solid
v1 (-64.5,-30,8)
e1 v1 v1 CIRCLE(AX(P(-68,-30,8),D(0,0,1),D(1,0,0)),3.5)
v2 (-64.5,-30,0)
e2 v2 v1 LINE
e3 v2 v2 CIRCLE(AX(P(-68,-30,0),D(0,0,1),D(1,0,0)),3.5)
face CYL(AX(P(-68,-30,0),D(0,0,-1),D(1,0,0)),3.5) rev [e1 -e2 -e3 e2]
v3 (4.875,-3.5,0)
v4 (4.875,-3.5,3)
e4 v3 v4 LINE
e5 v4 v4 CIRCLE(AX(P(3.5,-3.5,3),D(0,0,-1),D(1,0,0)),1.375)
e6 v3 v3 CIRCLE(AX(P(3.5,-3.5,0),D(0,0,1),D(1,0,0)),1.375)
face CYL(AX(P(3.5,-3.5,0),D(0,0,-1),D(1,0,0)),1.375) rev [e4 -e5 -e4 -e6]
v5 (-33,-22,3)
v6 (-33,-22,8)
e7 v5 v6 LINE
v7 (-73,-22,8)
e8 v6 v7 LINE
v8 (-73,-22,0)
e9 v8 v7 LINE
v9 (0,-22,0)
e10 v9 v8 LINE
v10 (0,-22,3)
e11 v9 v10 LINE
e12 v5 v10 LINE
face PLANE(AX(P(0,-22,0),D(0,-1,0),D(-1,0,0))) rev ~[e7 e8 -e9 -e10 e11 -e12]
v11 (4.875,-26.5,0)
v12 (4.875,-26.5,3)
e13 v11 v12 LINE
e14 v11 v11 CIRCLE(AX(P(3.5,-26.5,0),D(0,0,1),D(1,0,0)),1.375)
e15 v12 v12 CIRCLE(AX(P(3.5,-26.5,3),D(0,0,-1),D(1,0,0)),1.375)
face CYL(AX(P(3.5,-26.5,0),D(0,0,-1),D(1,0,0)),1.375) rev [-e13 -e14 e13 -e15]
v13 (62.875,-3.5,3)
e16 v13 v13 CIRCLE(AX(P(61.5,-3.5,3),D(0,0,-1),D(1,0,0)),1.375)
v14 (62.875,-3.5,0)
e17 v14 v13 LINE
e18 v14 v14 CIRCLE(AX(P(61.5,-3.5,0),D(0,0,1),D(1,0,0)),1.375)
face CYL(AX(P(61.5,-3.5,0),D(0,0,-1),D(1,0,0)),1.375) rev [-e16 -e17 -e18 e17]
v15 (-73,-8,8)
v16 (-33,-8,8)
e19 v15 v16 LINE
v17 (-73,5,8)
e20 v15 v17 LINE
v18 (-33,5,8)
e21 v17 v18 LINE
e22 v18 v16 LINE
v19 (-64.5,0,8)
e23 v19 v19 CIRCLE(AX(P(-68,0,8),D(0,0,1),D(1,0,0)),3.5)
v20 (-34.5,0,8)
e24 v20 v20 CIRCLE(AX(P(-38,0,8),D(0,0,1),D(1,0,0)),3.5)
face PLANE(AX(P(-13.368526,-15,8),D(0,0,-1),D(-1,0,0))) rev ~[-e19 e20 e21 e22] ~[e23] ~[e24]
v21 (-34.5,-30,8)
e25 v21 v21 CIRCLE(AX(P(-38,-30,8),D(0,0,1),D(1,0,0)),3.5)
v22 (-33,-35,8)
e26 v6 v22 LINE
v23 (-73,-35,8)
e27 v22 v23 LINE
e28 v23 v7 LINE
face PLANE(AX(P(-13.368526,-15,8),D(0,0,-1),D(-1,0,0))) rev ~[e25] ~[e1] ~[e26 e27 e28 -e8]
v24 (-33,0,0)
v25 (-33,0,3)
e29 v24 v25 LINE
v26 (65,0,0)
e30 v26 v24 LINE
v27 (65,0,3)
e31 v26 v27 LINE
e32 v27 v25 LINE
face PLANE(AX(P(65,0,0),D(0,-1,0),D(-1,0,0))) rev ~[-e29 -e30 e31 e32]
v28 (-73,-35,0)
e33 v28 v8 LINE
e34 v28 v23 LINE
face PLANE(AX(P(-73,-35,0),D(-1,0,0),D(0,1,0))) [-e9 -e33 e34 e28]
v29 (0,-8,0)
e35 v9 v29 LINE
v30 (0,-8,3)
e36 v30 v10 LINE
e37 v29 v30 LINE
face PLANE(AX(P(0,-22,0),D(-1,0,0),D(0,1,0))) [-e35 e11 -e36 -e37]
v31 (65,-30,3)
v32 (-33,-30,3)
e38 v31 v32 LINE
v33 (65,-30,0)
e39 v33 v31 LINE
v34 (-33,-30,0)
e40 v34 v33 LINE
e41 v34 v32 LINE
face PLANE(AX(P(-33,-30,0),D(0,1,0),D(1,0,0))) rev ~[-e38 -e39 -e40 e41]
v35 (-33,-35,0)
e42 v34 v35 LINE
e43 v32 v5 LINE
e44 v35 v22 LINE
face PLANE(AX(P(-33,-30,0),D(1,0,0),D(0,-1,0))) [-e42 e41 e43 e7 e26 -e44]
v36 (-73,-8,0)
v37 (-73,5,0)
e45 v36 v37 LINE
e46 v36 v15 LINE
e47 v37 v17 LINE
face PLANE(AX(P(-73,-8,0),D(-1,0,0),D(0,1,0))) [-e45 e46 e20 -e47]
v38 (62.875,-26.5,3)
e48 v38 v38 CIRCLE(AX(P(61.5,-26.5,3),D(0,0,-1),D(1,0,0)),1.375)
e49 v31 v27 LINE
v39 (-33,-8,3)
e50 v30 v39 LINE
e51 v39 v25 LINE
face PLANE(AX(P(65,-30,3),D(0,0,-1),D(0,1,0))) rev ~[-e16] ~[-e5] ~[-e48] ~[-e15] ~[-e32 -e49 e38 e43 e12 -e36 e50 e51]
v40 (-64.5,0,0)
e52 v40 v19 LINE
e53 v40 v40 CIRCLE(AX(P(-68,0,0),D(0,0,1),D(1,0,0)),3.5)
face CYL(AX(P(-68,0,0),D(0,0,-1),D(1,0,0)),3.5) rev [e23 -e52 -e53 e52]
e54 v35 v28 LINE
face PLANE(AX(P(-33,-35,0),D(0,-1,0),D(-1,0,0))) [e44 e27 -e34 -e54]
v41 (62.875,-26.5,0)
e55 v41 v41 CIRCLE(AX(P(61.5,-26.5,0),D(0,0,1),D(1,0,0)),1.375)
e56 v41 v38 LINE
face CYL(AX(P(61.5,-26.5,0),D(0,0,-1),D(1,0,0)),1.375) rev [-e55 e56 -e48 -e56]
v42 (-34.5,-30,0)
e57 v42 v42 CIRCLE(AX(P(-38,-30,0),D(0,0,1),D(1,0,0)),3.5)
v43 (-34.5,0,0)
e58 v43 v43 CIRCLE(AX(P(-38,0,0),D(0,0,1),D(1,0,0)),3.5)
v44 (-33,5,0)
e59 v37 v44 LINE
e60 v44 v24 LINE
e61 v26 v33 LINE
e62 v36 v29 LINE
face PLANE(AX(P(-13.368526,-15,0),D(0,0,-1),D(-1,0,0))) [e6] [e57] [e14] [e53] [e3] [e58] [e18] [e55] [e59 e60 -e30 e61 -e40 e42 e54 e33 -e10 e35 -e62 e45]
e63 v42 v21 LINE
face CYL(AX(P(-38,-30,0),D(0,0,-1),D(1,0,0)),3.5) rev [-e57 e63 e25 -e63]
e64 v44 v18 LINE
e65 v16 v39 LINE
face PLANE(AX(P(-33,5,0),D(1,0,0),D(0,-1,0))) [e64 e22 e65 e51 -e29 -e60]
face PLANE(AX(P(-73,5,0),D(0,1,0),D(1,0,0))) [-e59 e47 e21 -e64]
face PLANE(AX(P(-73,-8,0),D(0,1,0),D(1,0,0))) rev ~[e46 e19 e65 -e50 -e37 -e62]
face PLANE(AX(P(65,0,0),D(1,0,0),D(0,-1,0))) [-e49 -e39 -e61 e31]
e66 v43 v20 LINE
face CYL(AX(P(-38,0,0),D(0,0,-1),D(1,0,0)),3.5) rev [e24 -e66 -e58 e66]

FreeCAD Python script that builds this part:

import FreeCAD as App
import Part
import Sketcher
from FreeCAD import Vector

doc = App.newDocument("Part")
body = doc.addObject("PartDesign::Body", "Body")

sketch1 = body.newObject("Sketcher::SketchObject", "Sketch")
sketch1.AttachmentSupport = (doc.getObject("XY_Plane"), [""])
sketch1.MapMode = "FlatFace"
sketch1.addGeometry([
    Part.LineSegment(Vector(65, 0, 0), Vector(-33, 0, 0)),
    Part.LineSegment(Vector(-33, 0, 0), Vector(-33, 5, 0)),
    Part.LineSegment(Vector(-33, 5, 0), Vector(-73, 5, 0)),
    Part.LineSegment(Vector(-73, 5, 0), Vector(-73, -8, 0)),
    Part.LineSegment(Vector(-73, -8, 0), Vector(0, -8, 0)),
    Part.LineSegment(Vector(0, -8, 0), Vector(0, -22, 0)),
    Part.LineSegment(Vector(0, -22, 0), Vector(-73, -22, 0)),
    Part.LineSegment(Vector(-73, -22, 0), Vector(-73, -35, 0)),
    Part.LineSegment(Vector(-73, -35, 0), Vector(-33, -35, 0)),
    Part.LineSegment(Vector(-33, -35, 0), Vector(-33, -30, 0)),
    Part.LineSegment(Vector(-33, -30, 0), Vector(65, -30, 0)),
    Part.LineSegment(Vector(65, -30, 0), Vector(65, 0, 0)),
    Part.Circle(Vector(61.5, -26.5, 0), Vector(0, 0, 1), 1.375),
    Part.Circle(Vector(3.5, -26.5, 0), Vector(0, 0, 1), 1.375),
    Part.Circle(Vector(-38, -30, 0), Vector(0, 0, 1), 3.5),
    Part.Circle(Vector(-68, -30, 0), Vector(0, 0, 1), 3.5),
    Part.Circle(Vector(61.5, -3.5, 0), Vector(0, 0, 1), 1.375),
    Part.Circle(Vector(3.5, -3.5, 0), Vector(0, 0, 1), 1.375),
    Part.Circle(Vector(-38, 0, 0), Vector(0, 0, 1), 3.5),
    Part.Circle(Vector(-68, 0, 0), Vector(0, 0, 1), 3.5),
], False)
sketch1.addConstraint([
    Sketcher.Constraint("Coincident", 0, 2, 1, 1),
    Sketcher.Constraint("Coincident", 1, 2, 2, 1),
    Sketcher.Constraint("Coincident", 2, 2, 3, 1),
    Sketcher.Constraint("Coincident", 3, 2, 4, 1),
    Sketcher.Constraint("Coincident", 4, 2, 5, 1),
    Sketcher.Constraint("Coincident", 5, 2, 6, 1),
    Sketcher.Constraint("Coincident", 6, 2, 7, 1),
    Sketcher.Constraint("Coincident", 7, 2, 8, 1),
    Sketcher.Constraint("Coincident", 8, 2, 9, 1),
    Sketcher.Constraint("Coincident", 9, 2, 10, 1),
    Sketcher.Constraint("Coincident", 10, 2, 11, 1),
    Sketcher.Constraint("Coincident", 11, 2, 0, 1),
    Sketcher.Constraint("Horizontal", 0),
    Sketcher.Constraint("Vertical", 1),
    Sketcher.Constraint("Horizontal", 2),
    Sketcher.Constraint("Vertical", 3),
    Sketcher.Constraint("Horizontal", 4),
    Sketcher.Constraint("Vertical", 5),
    Sketcher.Constraint("Horizontal", 6),
    Sketcher.Constraint("Vertical", 7),
    Sketcher.Constraint("Horizontal", 8),
    Sketcher.Constraint("Vertical", 9),
    Sketcher.Constraint("Horizontal", 10),
    Sketcher.Constraint("Vertical", 11),
    Sketcher.Constraint("Equal", 12, 13),
    Sketcher.Constraint("Equal", 14, 15),
    Sketcher.Constraint("Equal", 13, 16),
    Sketcher.Constraint("Equal", 16, 17),
    Sketcher.Constraint("Equal", 15, 18),
    Sketcher.Constraint("Equal", 18, 19),
    Sketcher.Constraint("PointOnObject", 18, 3, -1),
    Sketcher.Constraint("PointOnObject", 19, 3, -1),
    Sketcher.Constraint("PointOnObject", 0, 2, -1),
    Sketcher.Constraint("PointOnObject", 4, 2, -2),
    Sketcher.Constraint("Horizontal", 12, 3, 13, 3),
    Sketcher.Constraint("Horizontal", 14, 3, 15, 3),
    Sketcher.Constraint("Horizontal", 16, 3, 17, 3),
    Sketcher.Constraint("Horizontal", 15, 3, 9, 2),
    Sketcher.Constraint("Vertical", 12, 3, 16, 3),
    Sketcher.Constraint("Vertical", 13, 3, 17, 3),
    Sketcher.Constraint("Vertical", 14, 3, 18, 3),
    Sketcher.Constraint("Vertical", 15, 3, 19, 3),
    Sketcher.Constraint("Vertical", 3, 2, 6, 2),
    Sketcher.Constraint("Vertical", 1, 2, 8, 2),
    Sketcher.Constraint("Equal", 3, 7),
    Sketcher.Constraint("Equal", 1, 9),
    Sketcher.Constraint("Diameter", 14, 7.0),
    Sketcher.Constraint("Diameter", 12, 2.75),
    Sketcher.Constraint("DistanceX", 0, 2, 0, 1, 98.0),
    Sketcher.Constraint("DistanceX", 2, 2, 2, 1, 40.0),
    Sketcher.Constraint("DistanceX", 4, 1, 4, 2, 73.0),
    Sketcher.Constraint("DistanceY", 1, 1, 1, 2, 5.0),
    Sketcher.Constraint("DistanceY", 3, 2, 3, 1, 13.0),
    Sketcher.Constraint("DistanceY", 5, 2, 5, 1, 14.0),
    Sketcher.Constraint("DistanceX", 14, 3, -1, 1, 38.0),
    Sketcher.Constraint("DistanceX", 15, 3, -1, 1, 68.0),
    Sketcher.Constraint("DistanceX", 13, 3, 12, 3, 58.0),
    Sketcher.Constraint("DistanceY", 12, 3, 16, 3, 23.0),
    Sketcher.Constraint("DistanceX", -1, 1, 12, 3, 61.5),
    Sketcher.Constraint("DistanceY", 12, 3, -1, 1, 26.5),
])
pad1 = body.newObject("PartDesign::Pad", "Pad")
pad1.Profile = sketch1
pad1.Length = 8

sketch2 = body.newObject("Sketcher::SketchObject", "Sketch001")
sketch2.AttachmentSupport = (doc.getObject("YZ_Plane"), [""])
sketch2.MapMode = "FlatFace"
sketch2.AttachmentOffset = App.Placement(Vector(0, 0, 65), App.Rotation())
sketch2.addGeometry([
    Part.LineSegment(Vector(-30, 8, 0), Vector(-30, 3, 0)),
    Part.LineSegment(Vector(-30, 3, 0), Vector(0, 3, 0)),
    Part.LineSegment(Vector(0, 3, 0), Vector(0, 8, 0)),
    Part.LineSegment(Vector(0, 8, 0), Vector(-30, 8, 0)),
], False)
sketch2.addConstraint([
    Sketcher.Constraint("Coincident", 0, 2, 1, 1),
    Sketcher.Constraint("Coincident", 1, 2, 2, 1),
    Sketcher.Constraint("Coincident", 2, 2, 3, 1),
    Sketcher.Constraint("Coincident", 3, 2, 0, 1),
    Sketcher.Constraint("Vertical", 0),
    Sketcher.Constraint("Horizontal", 1),
    Sketcher.Constraint("Vertical", 2),
    Sketcher.Constraint("Horizontal", 3),
    Sketcher.Constraint("PointOnObject", 1, 2, -2),
    Sketcher.Constraint("DistanceX", 1, 1, 1, 2, 30.0),
    Sketcher.Constraint("DistanceY", 0, 2, 0, 1, 5.0),
    Sketcher.Constraint("DistanceY", -1, 1, 0, 2, 3.0),
])
pocket1 = body.newObject("PartDesign::Pocket", "Pocket")
pocket1.Profile = sketch2
pocket1.Length = 98

doc.recompute()
